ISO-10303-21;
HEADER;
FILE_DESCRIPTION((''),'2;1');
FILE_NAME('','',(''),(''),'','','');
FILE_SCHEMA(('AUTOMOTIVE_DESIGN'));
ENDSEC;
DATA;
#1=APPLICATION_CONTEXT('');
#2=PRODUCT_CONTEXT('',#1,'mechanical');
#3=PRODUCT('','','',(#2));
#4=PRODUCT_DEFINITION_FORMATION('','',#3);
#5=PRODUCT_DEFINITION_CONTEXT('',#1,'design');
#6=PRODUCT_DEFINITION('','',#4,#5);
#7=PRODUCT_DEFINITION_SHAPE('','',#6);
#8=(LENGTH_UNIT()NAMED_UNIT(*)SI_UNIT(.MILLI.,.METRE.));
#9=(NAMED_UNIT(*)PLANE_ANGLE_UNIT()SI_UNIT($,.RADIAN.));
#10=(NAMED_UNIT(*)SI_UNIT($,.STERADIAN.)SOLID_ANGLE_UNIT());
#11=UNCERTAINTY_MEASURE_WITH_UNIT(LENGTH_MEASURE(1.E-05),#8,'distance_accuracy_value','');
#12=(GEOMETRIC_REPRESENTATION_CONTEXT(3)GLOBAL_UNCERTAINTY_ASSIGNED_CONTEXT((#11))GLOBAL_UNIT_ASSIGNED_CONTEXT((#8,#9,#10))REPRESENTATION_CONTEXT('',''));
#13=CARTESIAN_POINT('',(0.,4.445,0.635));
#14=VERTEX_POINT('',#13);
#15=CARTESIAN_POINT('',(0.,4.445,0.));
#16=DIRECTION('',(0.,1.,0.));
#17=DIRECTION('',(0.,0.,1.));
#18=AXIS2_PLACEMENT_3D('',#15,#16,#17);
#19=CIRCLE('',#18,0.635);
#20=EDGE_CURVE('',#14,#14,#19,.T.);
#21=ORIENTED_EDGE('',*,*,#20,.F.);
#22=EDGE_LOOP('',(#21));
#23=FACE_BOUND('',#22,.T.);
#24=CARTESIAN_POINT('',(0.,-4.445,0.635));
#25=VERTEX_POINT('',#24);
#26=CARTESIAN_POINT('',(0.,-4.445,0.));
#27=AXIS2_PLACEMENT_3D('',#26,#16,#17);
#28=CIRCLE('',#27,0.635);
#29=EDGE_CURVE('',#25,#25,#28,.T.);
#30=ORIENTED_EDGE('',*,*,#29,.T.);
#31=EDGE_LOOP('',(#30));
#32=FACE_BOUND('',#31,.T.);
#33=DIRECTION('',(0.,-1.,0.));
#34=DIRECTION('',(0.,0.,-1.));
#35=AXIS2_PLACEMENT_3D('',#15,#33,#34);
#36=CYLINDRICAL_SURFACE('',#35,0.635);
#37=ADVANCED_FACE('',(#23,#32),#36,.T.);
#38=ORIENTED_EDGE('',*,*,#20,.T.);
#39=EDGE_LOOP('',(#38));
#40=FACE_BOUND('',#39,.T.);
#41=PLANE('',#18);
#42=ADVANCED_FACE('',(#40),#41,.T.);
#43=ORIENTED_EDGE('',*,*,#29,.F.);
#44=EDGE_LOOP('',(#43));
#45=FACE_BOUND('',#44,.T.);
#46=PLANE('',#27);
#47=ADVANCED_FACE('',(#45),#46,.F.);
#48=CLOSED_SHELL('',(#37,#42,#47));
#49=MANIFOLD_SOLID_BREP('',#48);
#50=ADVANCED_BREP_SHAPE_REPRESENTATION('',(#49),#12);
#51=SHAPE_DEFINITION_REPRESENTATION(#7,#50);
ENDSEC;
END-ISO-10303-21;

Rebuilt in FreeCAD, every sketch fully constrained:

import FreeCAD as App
import Part
import Sketcher
Q = App.Units.Quantity

doc = App.newDocument("Part")
body = doc.addObject("PartDesign::Body", "Body")

sketch1 = doc.addObject("Sketcher::SketchObject", "Sketch")
body.addObject(sketch1)
sketch1.AttachmentSupport = (doc.XZ_Plane, [""])
sketch1.MapMode = "FlatFace"
sketch1.addGeometry(Part.Circle(App.Vector(0, 0, 0), App.Vector(0, 0, 1), 0.6), False)
sketch1.addConstraint(Sketcher.Constraint("Coincident", 0, 3, -1, 1))
sketch1.addConstraint(Sketcher.Constraint("Diameter", 0, Q("0.05 in")))
pad1 = doc.addObject("PartDesign::Pad", "Pad")
body.addObject(pad1)
pad1.Profile = sketch1
pad1.Length = Q("0.35 in")
pad1.Midplane = True

doc.recompute()
